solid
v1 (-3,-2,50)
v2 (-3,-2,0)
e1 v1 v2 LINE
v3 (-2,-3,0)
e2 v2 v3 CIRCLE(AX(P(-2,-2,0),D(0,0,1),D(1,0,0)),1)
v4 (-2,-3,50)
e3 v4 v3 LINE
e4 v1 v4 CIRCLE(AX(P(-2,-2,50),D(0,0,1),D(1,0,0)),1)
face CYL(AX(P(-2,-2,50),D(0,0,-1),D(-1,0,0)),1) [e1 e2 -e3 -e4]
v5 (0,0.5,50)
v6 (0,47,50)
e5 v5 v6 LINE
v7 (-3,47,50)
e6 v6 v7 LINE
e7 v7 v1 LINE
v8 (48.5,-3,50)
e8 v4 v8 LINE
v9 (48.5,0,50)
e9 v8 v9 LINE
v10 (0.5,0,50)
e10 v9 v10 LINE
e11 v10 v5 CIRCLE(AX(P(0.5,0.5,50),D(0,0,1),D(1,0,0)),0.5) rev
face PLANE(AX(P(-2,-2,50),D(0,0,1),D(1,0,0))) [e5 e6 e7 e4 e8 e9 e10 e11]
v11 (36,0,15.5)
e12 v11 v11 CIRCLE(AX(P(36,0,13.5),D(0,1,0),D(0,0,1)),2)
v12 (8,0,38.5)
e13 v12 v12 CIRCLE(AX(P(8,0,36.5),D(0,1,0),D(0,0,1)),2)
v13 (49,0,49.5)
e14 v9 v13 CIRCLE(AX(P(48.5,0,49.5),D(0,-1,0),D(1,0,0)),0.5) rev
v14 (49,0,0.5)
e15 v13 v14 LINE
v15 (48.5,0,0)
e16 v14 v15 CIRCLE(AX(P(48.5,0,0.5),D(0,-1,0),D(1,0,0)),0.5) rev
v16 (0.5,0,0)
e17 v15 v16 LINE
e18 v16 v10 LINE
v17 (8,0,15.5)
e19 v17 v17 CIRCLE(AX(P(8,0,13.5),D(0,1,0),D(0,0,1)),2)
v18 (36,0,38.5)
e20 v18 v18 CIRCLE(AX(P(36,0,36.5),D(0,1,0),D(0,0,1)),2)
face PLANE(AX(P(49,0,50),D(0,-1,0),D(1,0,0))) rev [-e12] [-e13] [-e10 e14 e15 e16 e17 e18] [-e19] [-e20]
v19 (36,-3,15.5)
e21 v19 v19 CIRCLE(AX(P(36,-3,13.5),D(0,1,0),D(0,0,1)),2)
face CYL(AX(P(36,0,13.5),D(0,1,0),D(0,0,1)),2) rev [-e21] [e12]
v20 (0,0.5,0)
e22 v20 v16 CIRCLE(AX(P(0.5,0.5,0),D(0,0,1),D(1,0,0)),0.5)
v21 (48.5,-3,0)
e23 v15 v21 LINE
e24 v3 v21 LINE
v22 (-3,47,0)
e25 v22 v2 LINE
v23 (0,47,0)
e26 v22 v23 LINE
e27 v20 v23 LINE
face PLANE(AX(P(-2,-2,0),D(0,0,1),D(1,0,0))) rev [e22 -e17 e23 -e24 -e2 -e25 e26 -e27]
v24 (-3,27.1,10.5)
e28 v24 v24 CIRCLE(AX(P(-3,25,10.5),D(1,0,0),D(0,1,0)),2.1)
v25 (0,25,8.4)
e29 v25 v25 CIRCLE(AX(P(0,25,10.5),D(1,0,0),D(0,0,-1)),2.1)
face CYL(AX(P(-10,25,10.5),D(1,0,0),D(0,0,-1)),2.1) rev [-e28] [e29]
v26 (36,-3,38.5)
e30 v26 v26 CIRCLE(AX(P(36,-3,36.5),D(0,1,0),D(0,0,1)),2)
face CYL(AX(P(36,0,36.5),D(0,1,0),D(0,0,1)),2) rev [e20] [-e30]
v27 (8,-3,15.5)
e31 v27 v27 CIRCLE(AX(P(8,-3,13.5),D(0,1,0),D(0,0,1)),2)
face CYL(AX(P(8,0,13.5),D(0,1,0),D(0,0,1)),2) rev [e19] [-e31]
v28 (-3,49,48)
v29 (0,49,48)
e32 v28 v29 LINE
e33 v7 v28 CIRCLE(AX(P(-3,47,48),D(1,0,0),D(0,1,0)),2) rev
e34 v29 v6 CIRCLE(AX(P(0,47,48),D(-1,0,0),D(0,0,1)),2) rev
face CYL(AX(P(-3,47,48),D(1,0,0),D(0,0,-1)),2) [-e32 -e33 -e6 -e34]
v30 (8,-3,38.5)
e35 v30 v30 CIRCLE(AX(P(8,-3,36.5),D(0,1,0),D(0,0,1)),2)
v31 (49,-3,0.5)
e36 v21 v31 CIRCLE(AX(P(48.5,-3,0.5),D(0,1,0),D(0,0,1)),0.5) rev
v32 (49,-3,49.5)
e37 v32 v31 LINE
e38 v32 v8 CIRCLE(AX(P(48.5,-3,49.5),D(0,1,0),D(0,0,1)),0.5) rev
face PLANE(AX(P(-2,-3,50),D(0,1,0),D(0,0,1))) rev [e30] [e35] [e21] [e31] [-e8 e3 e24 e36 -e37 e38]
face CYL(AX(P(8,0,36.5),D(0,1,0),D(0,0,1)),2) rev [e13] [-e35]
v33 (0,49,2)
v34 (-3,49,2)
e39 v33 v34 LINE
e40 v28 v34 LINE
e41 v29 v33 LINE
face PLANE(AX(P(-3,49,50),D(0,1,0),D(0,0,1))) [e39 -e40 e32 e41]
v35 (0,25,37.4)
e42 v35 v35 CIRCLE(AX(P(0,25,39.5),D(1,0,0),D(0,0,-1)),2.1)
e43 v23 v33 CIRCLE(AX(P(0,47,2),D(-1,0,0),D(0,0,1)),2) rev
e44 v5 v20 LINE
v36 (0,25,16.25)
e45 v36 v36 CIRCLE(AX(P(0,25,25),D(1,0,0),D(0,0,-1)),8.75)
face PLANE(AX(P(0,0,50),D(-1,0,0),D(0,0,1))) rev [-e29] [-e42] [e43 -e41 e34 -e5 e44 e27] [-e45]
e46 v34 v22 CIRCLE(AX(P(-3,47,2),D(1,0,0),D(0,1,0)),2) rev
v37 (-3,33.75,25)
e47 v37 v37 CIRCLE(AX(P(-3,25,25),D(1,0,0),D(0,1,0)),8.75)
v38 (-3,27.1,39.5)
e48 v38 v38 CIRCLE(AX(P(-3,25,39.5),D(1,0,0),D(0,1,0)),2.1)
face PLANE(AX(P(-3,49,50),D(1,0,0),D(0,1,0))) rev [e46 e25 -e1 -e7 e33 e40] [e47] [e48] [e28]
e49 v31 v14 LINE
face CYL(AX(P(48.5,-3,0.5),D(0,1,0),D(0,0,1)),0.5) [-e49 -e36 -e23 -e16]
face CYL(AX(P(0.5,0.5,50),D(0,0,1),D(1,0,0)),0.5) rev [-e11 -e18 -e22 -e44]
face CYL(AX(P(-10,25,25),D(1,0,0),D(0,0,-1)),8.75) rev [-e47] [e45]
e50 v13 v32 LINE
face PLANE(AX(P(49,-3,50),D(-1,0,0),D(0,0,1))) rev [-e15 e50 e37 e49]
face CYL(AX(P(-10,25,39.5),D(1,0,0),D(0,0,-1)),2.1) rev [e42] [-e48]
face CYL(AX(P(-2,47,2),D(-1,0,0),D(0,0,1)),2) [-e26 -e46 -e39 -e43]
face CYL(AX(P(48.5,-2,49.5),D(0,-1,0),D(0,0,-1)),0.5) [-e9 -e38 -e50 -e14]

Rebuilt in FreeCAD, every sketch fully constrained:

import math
import FreeCAD as App
import Part
import Sketcher
from FreeCAD import Vector
Q = App.Units.Quantity


def edges_at(feature, points):
    """Names of the edges that pass closest to the given points."""
    edges = feature.Shape.Edges
    near = lambda p: min(range(len(edges)), key=lambda i: edges[i].distToShape(Part.Vertex(*p))[0])
    return sorted({f"Edge{near(p) + 1}" for p in points})

doc = App.newDocument("Part")
body = doc.addObject("PartDesign::Body", "Body")

sketch1 = doc.addObject("Sketcher::SketchObject", "Sketch")
body.addObject(sketch1)
sketch1.AttachmentSupport = (doc.XY_Plane, [""])
sketch1.MapMode = "FlatFace"
sketch1.addGeometry(Part.LineSegment(Vector(0, 0, 0), Vector(0, 49, 0)), False)
sketch1.addGeometry(Part.LineSegment(Vector(0, 49, 0), Vector(-3, 49, 0)), False)
sketch1.addGeometry(Part.LineSegment(Vector(-3, 49, 0), Vector(-3, -2, 0)), False)
sketch1.addGeometry(Part.ArcOfCircle(Part.Circle(Vector(-2, -2, 0), Vector(0, 0, 1), 1), math.radians(-180), math.radians(-90)), False)
sketch1.addGeometry(Part.LineSegment(Vector(-2, -3, 0), Vector(49, -3, 0)), False)
sketch1.addGeometry(Part.LineSegment(Vector(49, -3, 0), Vector(49, 0, 0)), False)
sketch1.addGeometry(Part.LineSegment(Vector(49, 0, 0), Vector(0, 0, 0)), False)
sketch1.addConstraint(Sketcher.Constraint("Coincident", 0, 2, 1, 1))
sketch1.addConstraint(Sketcher.Constraint("Coincident", 1, 2, 2, 1))
sketch1.addConstraint(Sketcher.Constraint("Tangent", 2, 2, 3, 1))
sketch1.addConstraint(Sketcher.Constraint("Tangent", 3, 2, 4, 1))
sketch1.addConstraint(Sketcher.Constraint("Coincident", 4, 2, 5, 1))
sketch1.addConstraint(Sketcher.Constraint("Coincident", 5, 2, 6, 1))
sketch1.addConstraint(Sketcher.Constraint("Coincident", 6, 2, 0, 1))
sketch1.addConstraint(Sketcher.Constraint("Vertical", 0))
sketch1.addConstraint(Sketcher.Constraint("Horizontal", 1))
sketch1.addConstraint(Sketcher.Constraint("Vertical", 2))
sketch1.addConstraint(Sketcher.Constraint("Horizontal", 4))
sketch1.addConstraint(Sketcher.Constraint("Vertical", 5))
sketch1.addConstraint(Sketcher.Constraint("Horizontal", 6))
sketch1.addConstraint(Sketcher.Constraint("Coincident", 6, 2, -1, 1))
sketch1.addConstraint(Sketcher.Constraint("Equal", 6, 0))
sketch1.addConstraint(Sketcher.Constraint("Equal", 4, 2))
sketch1.addConstraint(Sketcher.Constraint("Radius", 3, Q("1 mm")))
sketch1.addConstraint(Sketcher.Constraint("DistanceX", 1, 2, 1, 1, Q("3 mm")))
sketch1.addConstraint(Sketcher.Constraint("DistanceX", 4, 1, 4, 2, Q("51 mm")))
pad1 = doc.addObject("PartDesign::Pad", "Pad")
body.addObject(pad1)
pad1.Profile = sketch1
pad1.Length = 50

sketch2 = doc.addObject("Sketcher::SketchObject", "Sketch001")
body.addObject(sketch2)
sketch2.AttachmentSupport = (doc.YZ_Plane, [""])
sketch2.MapMode = "FlatFace"
sketch2.addGeometry(Part.Circle(Vector(25, 25, 0), Vector(0, 0, 1), 8.8), False)
sketch2.addGeometry(Part.Circle(Vector(25, 10.5, 0), Vector(0, 0, 1), 2.1), False)
sketch2.addGeometry(Part.Circle(Vector(25, 39.5, 0), Vector(0, 0, 1), 2.1), False)
sketch2.addConstraint(Sketcher.Constraint("Equal", 1, 2))
sketch2.addConstraint(Sketcher.Constraint("Vertical", 0, 3, 1, 3))
sketch2.addConstraint(Sketcher.Constraint("Vertical", 1, 3, 2, 3))
sketch2.addConstraint(Sketcher.Constraint("Diameter", 0, Q("17.5 mm")))
sketch2.addConstraint(Sketcher.Constraint("Diameter", 1, Q("4.2 mm")))
sketch2.addConstraint(Sketcher.Constraint("DistanceX", -1, 1, 0, 3, Q("25 mm")))
sketch2.addConstraint(Sketcher.Constraint("DistanceY", -1, 1, 0, 3, Q("25 mm")))
sketch2.addConstraint(Sketcher.Constraint("DistanceY", 1, 3, 2, 3, Q("29 mm")))
sketch2.addConstraint(Sketcher.Constraint("DistanceY", -1, 1, 1, 3, Q("10.5 mm")))
pocket1 = doc.addObject("PartDesign::Pocket", "Pocket")
body.addObject(pocket1)
pocket1.Profile = sketch2
pocket1.Length = 10
doc.recompute()

fillet = doc.addObject("PartDesign::Fillet", "Fillet")
body.addObject(fillet)
fillet.Base = (pocket1, edges_at(pocket1, [(-1.5, 49, 50), (-1.5, 49, 0)]))
fillet.Radius = 2
doc.recompute()

fillet2 = doc.addObject("PartDesign::Fillet", "Fillet001")
body.addObject(fillet2)
fillet2.Base = (fillet, edges_at(fillet, [(0, 0, 25)]))
fillet2.Radius = 0.5
doc.recompute()

fillet3 = doc.addObject("PartDesign::Fillet", "Fillet002")
body.addObject(fillet3)
fillet3.Base = (fillet2, edges_at(fillet2, [(49, -1.5, 50), (49, -1.5, 0)]))
fillet3.Radius = 0.5

sketch3 = doc.addObject("Sketcher::SketchObject", "Sketch002")
body.addObject(sketch3)
sketch3.AttachmentSupport = (doc.XZ_Plane, [""])
sketch3.MapMode = "FlatFace"
sketch3.addGeometry(Part.Circle(Vector(36, 13.5, 0), Vector(0, 0, 1), 2), False)
sketch3.addGeometry(Part.Circle(Vector(8, 13.5, 0), Vector(0, 0, 1), 2), False)
sketch3.addGeometry(Part.Circle(Vector(36, 36.5, 0), Vector(0, 0, 1), 2), False)
sketch3.addGeometry(Part.Circle(Vector(8, 36.5, 0), Vector(0, 0, 1), 2), False)
sketch3.addConstraint(Sketcher.Constraint("Equal", 0, 1))
sketch3.addConstraint(Sketcher.Constraint("Equal", 1, 2))
sketch3.addConstraint(Sketcher.Constraint("Equal", 2, 3))
sketch3.addConstraint(Sketcher.Constraint("Horizontal", 0, 3, 1, 3))
sketch3.addConstraint(Sketcher.Constraint("Horizontal", 2, 3, 3, 3))
sketch3.addConstraint(Sketcher.Constraint("Vertical", 0, 3, 2, 3))
sketch3.addConstraint(Sketcher.Constraint("Vertical", 1, 3, 3, 3))
sketch3.addConstraint(Sketcher.Constraint("Diameter", 0, Q("4 mm")))
sketch3.addConstraint(Sketcher.Constraint("DistanceX", -1, 1, 0, 3, Q("36 mm")))
sketch3.addConstraint(Sketcher.Constraint("DistanceX", -1, 1, 1, 3, Q("8 mm")))
sketch3.addConstraint(Sketcher.Constraint("DistanceY", 0, 3, 2, 3, Q("23 mm")))
sketch3.addConstraint(Sketcher.Constraint("DistanceY", -1, 1, 0, 3, Q("13.5 mm")))
doc.recompute()
hole = doc.addObject("PartDesign::Hole", "Hole")
body.addObject(hole)
hole.Profile = sketch3
hole.ThreadType = "None"
hole.Diameter = 4
hole.DepthType = "ThroughAll"
hole.Reversed = True

doc.recompute()
